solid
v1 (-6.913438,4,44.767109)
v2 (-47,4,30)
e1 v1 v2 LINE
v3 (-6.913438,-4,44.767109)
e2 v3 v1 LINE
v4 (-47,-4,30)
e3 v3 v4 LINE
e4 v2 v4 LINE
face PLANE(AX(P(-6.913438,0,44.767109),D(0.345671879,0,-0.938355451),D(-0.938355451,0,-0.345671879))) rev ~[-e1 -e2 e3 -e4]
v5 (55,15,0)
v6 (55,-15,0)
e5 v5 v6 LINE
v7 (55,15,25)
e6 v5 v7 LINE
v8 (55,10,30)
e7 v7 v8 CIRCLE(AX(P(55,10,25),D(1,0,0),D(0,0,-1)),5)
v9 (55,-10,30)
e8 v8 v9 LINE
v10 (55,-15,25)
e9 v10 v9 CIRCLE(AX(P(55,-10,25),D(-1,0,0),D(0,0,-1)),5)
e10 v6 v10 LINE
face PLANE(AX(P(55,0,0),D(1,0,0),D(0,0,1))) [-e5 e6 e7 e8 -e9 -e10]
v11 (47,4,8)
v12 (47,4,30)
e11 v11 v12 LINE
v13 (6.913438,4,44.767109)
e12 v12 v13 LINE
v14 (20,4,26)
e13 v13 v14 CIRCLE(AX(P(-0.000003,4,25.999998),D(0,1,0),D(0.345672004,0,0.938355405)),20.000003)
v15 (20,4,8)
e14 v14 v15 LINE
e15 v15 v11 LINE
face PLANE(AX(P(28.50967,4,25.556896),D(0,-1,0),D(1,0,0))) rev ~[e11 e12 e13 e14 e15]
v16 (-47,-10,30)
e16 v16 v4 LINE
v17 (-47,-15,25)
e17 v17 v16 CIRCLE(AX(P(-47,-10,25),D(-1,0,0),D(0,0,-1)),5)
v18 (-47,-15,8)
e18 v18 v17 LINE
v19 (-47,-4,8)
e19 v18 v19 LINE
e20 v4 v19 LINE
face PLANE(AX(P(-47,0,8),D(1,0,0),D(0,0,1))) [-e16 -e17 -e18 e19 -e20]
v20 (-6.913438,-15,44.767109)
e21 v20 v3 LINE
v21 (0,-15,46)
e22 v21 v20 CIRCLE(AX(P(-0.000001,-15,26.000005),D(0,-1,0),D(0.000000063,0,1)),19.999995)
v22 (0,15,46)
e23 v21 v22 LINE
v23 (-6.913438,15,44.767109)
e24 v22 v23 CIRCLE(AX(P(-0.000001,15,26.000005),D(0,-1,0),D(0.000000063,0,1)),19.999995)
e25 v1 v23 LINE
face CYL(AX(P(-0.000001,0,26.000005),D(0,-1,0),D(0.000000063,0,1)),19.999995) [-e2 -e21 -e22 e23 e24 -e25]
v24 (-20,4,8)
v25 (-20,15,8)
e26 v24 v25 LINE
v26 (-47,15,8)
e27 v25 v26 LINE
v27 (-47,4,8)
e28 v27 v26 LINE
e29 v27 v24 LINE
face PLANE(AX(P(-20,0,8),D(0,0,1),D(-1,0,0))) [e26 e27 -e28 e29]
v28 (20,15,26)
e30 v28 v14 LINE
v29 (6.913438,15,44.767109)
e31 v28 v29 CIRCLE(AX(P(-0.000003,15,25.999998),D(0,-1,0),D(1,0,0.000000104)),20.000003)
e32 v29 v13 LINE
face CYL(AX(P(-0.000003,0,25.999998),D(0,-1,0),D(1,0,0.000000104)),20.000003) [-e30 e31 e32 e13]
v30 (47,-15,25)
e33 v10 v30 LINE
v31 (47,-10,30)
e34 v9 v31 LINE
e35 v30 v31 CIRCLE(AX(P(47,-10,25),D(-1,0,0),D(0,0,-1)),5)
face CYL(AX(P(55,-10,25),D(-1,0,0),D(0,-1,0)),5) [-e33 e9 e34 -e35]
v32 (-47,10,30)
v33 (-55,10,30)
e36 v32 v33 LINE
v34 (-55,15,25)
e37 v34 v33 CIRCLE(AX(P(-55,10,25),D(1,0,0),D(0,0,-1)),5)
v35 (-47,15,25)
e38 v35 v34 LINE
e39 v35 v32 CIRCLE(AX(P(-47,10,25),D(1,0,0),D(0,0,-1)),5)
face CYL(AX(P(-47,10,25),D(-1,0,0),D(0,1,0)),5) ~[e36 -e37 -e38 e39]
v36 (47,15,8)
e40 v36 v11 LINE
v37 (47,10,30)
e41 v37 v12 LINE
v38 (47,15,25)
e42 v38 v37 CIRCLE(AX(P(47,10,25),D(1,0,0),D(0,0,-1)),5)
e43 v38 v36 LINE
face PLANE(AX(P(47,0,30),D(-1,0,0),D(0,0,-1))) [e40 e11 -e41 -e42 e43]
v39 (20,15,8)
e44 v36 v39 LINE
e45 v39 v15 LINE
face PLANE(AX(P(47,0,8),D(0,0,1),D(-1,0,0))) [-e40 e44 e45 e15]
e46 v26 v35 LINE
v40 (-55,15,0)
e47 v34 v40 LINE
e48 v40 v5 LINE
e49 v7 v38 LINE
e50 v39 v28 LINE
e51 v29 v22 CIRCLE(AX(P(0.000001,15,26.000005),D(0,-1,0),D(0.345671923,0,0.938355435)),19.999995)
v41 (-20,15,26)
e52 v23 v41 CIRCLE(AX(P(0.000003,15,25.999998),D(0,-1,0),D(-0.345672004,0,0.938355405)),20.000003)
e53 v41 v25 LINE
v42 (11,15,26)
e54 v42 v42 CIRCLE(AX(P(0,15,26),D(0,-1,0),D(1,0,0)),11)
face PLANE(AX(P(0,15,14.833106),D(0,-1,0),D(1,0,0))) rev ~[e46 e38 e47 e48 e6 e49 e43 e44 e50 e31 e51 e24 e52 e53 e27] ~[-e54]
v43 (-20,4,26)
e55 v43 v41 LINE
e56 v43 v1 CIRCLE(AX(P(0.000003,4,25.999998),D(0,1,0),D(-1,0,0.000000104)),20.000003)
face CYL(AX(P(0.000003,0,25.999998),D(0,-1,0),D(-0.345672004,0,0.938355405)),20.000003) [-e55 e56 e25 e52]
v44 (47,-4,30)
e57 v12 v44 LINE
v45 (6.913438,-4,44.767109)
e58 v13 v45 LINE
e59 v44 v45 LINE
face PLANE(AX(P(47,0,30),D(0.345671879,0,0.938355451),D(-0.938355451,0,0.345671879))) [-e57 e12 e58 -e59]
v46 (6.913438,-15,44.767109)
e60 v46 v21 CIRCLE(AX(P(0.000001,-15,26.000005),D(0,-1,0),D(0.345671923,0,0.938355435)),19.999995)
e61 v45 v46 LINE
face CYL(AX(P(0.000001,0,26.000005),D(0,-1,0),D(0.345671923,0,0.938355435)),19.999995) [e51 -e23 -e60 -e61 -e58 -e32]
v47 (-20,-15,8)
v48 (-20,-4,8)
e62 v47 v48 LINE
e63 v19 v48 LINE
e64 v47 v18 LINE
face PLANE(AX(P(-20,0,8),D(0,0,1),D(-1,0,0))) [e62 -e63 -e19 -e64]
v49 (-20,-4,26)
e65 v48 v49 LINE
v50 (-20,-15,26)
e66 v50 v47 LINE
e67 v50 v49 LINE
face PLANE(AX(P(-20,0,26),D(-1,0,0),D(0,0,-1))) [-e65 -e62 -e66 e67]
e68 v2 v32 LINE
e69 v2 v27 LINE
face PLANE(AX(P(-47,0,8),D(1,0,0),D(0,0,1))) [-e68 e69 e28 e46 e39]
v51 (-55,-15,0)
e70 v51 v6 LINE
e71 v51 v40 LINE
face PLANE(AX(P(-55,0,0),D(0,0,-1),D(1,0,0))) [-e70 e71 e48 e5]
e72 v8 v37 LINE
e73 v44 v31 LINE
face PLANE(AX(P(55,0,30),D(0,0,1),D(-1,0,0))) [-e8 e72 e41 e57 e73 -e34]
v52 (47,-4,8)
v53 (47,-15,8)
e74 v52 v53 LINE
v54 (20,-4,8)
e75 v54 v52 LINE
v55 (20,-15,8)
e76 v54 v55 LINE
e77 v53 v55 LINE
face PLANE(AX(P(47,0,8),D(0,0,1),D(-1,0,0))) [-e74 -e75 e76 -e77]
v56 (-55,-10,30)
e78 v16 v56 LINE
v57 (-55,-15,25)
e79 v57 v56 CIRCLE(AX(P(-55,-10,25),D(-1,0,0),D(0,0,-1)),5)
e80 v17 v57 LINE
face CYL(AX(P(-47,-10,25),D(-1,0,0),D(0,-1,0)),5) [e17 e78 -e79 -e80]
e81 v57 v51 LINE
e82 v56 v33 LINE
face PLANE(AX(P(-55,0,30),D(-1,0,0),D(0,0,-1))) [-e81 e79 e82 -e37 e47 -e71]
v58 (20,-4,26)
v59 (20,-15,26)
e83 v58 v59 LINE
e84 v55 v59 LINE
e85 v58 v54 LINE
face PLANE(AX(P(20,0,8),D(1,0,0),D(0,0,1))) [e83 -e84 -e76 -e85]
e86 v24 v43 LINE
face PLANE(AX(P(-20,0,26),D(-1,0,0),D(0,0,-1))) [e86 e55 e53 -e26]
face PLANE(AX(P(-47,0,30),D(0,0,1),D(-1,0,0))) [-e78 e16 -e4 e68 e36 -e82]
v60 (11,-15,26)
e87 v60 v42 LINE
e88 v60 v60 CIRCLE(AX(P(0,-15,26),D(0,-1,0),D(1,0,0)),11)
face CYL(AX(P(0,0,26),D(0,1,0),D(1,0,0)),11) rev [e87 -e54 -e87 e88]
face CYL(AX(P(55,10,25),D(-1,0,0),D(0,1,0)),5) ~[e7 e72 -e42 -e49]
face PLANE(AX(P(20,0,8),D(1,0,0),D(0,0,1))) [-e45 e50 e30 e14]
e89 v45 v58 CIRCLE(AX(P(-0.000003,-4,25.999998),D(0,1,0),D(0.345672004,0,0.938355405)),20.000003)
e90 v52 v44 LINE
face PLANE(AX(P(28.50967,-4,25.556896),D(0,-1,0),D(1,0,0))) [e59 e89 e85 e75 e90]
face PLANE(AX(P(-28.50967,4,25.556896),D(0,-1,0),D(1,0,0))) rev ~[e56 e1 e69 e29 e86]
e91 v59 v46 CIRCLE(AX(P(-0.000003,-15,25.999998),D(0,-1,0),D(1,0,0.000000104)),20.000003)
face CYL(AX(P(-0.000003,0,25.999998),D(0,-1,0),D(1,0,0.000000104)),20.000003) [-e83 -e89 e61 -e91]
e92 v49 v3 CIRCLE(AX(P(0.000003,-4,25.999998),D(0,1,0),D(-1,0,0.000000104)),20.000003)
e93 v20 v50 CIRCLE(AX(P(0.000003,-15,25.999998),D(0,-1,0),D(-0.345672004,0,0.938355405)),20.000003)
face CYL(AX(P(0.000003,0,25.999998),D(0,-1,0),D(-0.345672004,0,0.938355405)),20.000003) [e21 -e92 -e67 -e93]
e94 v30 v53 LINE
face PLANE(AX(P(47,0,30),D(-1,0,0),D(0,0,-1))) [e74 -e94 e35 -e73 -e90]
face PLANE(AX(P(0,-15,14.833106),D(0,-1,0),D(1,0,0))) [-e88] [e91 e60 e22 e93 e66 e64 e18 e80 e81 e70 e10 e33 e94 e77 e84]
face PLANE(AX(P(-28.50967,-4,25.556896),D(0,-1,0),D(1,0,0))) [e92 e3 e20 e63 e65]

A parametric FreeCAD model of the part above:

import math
import FreeCAD as App
import Part
import Sketcher


def edges_at(feature, points):
    """Names of the edges that pass closest to the given points."""
    edges = feature.Shape.Edges
    near = lambda p: min(range(len(edges)), key=lambda i: edges[i].distToShape(Part.Vertex(*p))[0])
    return sorted({f"Edge{near(p) + 1}" for p in points})

doc = App.newDocument("Part")
body = doc.addObject("PartDesign::Body", "Body")

# Sketch on XZ plane
sketch1 = body.newObject("Sketcher::SketchObject", "Sketch")
sketch1.AttachmentSupport = (doc.getObject("XZ_Plane"), [""])
sketch1.MapMode = "FlatFace"
sketch1.addGeometry([
    Part.LineSegment(App.Vector(-55, 0, 0), App.Vector(55, 0, 0)),  # 0
    Part.LineSegment(App.Vector(55, 0, 0), App.Vector(55, 30, 0)),  # 1
    Part.LineSegment(App.Vector(55, 30, 0), App.Vector(47, 30, 0)),  # 2
    Part.LineSegment(App.Vector(47, 30, 0), App.Vector(47, 8, 0)),  # 3
    Part.LineSegment(App.Vector(47, 8, 0), App.Vector(20, 8, 0)),  # 4
    Part.LineSegment(App.Vector(20, 8, 0), App.Vector(20, 26, 0)),  # 5
    Part.ArcOfCircle(Part.Circle(App.Vector(0, 26, 0), App.Vector(0, 0, 1), 20), math.radians(0), math.radians(70)),  # 6
    Part.ArcOfCircle(Part.Circle(App.Vector(0, 26, 0), App.Vector(0, 0, 1), 20), math.radians(70), math.radians(90)),  # 7
    Part.ArcOfCircle(Part.Circle(App.Vector(0, 26, 0), App.Vector(0, 0, 1), 20), math.radians(90), math.radians(110)),  # 8
    Part.ArcOfCircle(Part.Circle(App.Vector(0, 26, 0), App.Vector(0, 0, 1), 20), math.radians(110), math.radians(180)),  # 9
    Part.LineSegment(App.Vector(-20, 26, 0), App.Vector(-20, 8, 0)),  # 10
    Part.LineSegment(App.Vector(-20, 8, 0), App.Vector(-47, 8, 0)),  # 11
    Part.LineSegment(App.Vector(-47, 8, 0), App.Vector(-47, 30, 0)),  # 12
    Part.LineSegment(App.Vector(-47, 30, 0), App.Vector(-55, 30, 0)),  # 13
    Part.LineSegment(App.Vector(-55, 30, 0), App.Vector(-55, 0, 0)),  # 14
    Part.Circle(App.Vector(0, 26, 0), App.Vector(0, 0, 1), 11),  # 15
], False)
sketch1.addConstraint([
    Sketcher.Constraint("Coincident", 0, 2, 1, 1),
    Sketcher.Constraint("Coincident", 1, 2, 2, 1),
    Sketcher.Constraint("Coincident", 2, 2, 3, 1),
    Sketcher.Constraint("Coincident", 3, 2, 4, 1),
    Sketcher.Constraint("Coincident", 4, 2, 5, 1),
    Sketcher.Constraint("Tangent", 5, 2, 6, 1),
    Sketcher.Constraint("Tangent", 6, 2, 7, 1),
    Sketcher.Constraint("Tangent", 7, 2, 8, 1),
    Sketcher.Constraint("Tangent", 8, 2, 9, 1),
    Sketcher.Constraint("Tangent", 9, 2, 10, 1),
    Sketcher.Constraint("Coincident", 10, 2, 11, 1),
    Sketcher.Constraint("Coincident", 11, 2, 12, 1),
    Sketcher.Constraint("Coincident", 12, 2, 13, 1),
    Sketcher.Constraint("Coincident", 13, 2, 14, 1),
    Sketcher.Constraint("Coincident", 14, 2, 0, 1),
    Sketcher.Constraint("Horizontal", 0),
    Sketcher.Constraint("Vertical", 1),
    Sketcher.Constraint("Horizontal", 2),
    Sketcher.Constraint("Vertical", 3),
    Sketcher.Constraint("Horizontal", 4),
    Sketcher.Constraint("Vertical", 5),
    Sketcher.Constraint("Vertical", 10),
    Sketcher.Constraint("Horizontal", 11),
    Sketcher.Constraint("Vertical", 12),
    Sketcher.Constraint("Horizontal", 13),
    Sketcher.Constraint("Vertical", 14),
    Sketcher.Constraint("Coincident", 8, 3, 6, 3),
    Sketcher.Constraint("Coincident", 15, 3, 6, 3),
    Sketcher.Constraint("Equal", 6, 9),
    Sketcher.Constraint("Symmetric", 0, 2, 14, 2, -1, 1),
    Sketcher.Constraint("Symmetric", 6, 2, 8, 2, -2),
    Sketcher.Constraint("Symmetric", 3, 2, 11, 2, -2),
    Sketcher.Constraint("PointOnObject", 7, 2, -2),
    Sketcher.Constraint("Horizontal", 2, 2, 12, 2),
    Sketcher.Constraint("Diameter", 15, 22.0),
    Sketcher.Constraint("DistanceX", 0, 1, 0, 2, 110.0),
    Sketcher.Constraint("DistanceX", 2, 2, 2, 1, 8.0),
    Sketcher.Constraint("DistanceX", 4, 2, 4, 1, 27.0),
    Sketcher.Constraint("DistanceY", 1, 1, 1, 2, 30.0),
    Sketcher.Constraint("DistanceY", 3, 2, 3, 1, 22.0),
    Sketcher.Constraint("DistanceY", 5, 1, 5, 2, 18.0),
    Sketcher.Constraint("DistanceY", -1, 1, 6, 2, 44.767109),
])
pad1 = body.newObject("PartDesign::Pad", "Pad")
pad1.Profile = sketch1
pad1.Length = 30
pad1.Midplane = True

# Sketch on XZ plane
sketch2 = body.newObject("Sketcher::SketchObject", "Sketch001")
sketch2.AttachmentSupport = (doc.getObject("XZ_Plane"), [""])
sketch2.MapMode = "FlatFace"
sketch2.addGeometry([
    Part.LineSegment(App.Vector(-7, 45, 0), App.Vector(-47, 30, 0)),  # 0
    Part.LineSegment(App.Vector(-47, 30, 0), App.Vector(-47, 8, 0)),  # 1
    Part.LineSegment(App.Vector(-47, 8, 0), App.Vector(-20, 8, 0)),  # 2
    Part.LineSegment(App.Vector(-20, 8, 0), App.Vector(-20, 26, 0)),  # 3
    Part.ArcOfCircle(Part.Circle(App.Vector(0, 26, 0), App.Vector(0, 0, 1), 20), math.radians(110), math.radians(180)),  # 4
    Part.LineSegment(App.Vector(47, 8, 0), App.Vector(47, 30, 0)),  # 5
    Part.LineSegment(App.Vector(47, 30, 0), App.Vector(7, 45, 0)),  # 6
    Part.ArcOfCircle(Part.Circle(App.Vector(0, 26, 0), App.Vector(0, 0, 1), 20), math.radians(0), math.radians(70)),  # 7
    Part.LineSegment(App.Vector(20, 26, 0), App.Vector(20, 8, 0)),  # 8
    Part.LineSegment(App.Vector(20, 8, 0), App.Vector(47, 8, 0)),  # 9
], False)
sketch2.addConstraint([
    Sketcher.Constraint("Coincident", 0, 2, 1, 1),
    Sketcher.Constraint("Coincident", 1, 2, 2, 1),
    Sketcher.Constraint("Coincident", 2, 2, 3, 1),
    Sketcher.Constraint("Tangent", 3, 2, 4, 2),
    Sketcher.Constraint("Tangent", 4, 1, 0, 1),
    Sketcher.Constraint("Coincident", 5, 2, 6, 1),
    Sketcher.Constraint("Tangent", 6, 2, 7, 2),
    Sketcher.Constraint("Tangent", 7, 1, 8, 1),
    Sketcher.Constraint("Coincident", 8, 2, 9, 1),
    Sketcher.Constraint("Coincident", 9, 2, 5, 1),
    Sketcher.Constraint("Vertical", 1),
    Sketcher.Constraint("Horizontal", 2),
    Sketcher.Constraint("Vertical", 3),
    Sketcher.Constraint("Vertical", 5),
    Sketcher.Constraint("Vertical", 8),
    Sketcher.Constraint("Horizontal", 9),
    Sketcher.Constraint("Coincident", 7, 3, 4, 3),
    Sketcher.Constraint("Equal", 4, 7),
    Sketcher.Constraint("Symmetric", 0, 2, 5, 2, -2),
    Sketcher.Constraint("Symmetric", 2, 2, 8, 2, -2),
    Sketcher.Constraint("DistanceX", 2, 1, 2, 2, 27.0),
    Sketcher.Constraint("DistanceY", 1, 2, 1, 1, 22.0),
    Sketcher.Constraint("DistanceY", 3, 1, 3, 2, 18.0),
    Sketcher.Constraint("DistanceX", 0, 2, -1, 1, 47.0),
    Sketcher.Constraint("DistanceY", -1, 1, 0, 2, 30.0),
])
pad2 = body.newObject("PartDesign::Pad", "Pad001")
pad2.Profile = sketch2
pad2.Length = 8
pad2.Midplane = True
doc.recompute()

fillet = body.newObject("PartDesign::Fillet", "Fillet")
fillet.Base = (pad2, edges_at(pad2, [
    (51, -15, 30),
    (-51, -15, 30),
    (-51, 15, 30),
    (51, 15, 30),
]))
fillet.Radius = 5

doc.recompute()
